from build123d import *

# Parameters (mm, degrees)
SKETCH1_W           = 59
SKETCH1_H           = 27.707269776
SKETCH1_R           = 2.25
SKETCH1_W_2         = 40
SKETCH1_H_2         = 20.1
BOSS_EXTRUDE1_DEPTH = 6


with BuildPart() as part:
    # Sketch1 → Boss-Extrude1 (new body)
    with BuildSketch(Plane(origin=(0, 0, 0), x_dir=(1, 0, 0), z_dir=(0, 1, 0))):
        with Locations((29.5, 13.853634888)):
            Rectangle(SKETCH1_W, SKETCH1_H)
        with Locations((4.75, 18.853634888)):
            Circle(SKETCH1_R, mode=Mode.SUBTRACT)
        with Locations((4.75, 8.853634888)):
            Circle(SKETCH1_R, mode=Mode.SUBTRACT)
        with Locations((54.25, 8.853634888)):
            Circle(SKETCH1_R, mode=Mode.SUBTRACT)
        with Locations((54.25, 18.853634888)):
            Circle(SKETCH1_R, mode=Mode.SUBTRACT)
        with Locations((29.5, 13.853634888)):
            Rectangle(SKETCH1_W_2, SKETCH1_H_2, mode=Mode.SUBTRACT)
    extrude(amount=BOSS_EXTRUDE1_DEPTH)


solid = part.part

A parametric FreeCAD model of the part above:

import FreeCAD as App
import Part
import Sketcher
Q = App.Units.Quantity

doc = App.newDocument("Part")
body = doc.addObject("PartDesign::Body", "Body")

sketch1 = doc.addObject("Sketcher::SketchObject", "Sketch")
body.addObject(sketch1)
sketch1.AttachmentSupport = (doc.XZ_Plane, [""])
sketch1.MapMode = "FlatFace"
sketch1.addGeometry([
    Part.LineSegment(App.Vector(0, -27.7, 0), App.Vector(0, 0, 0)),
    Part.LineSegment(App.Vector(0, 0, 0), App.Vector(59, 0, 0)),
    Part.LineSegment(App.Vector(59, 0, 0), App.Vector(59, -27.7, 0)),
    Part.LineSegment(App.Vector(59, -27.7, 0), App.Vector(0, -27.7, 0)),
    Part.Circle(App.Vector(4.8, -8.9, 0), App.Vector(0, 0, 1), 2.2),
    Part.Circle(App.Vector(54.2, -8.9, 0), App.Vector(0, 0, 1), 2.2),
    Part.Circle(App.Vector(4.8, -18.9, 0), App.Vector(0, 0, 1), 2.2),
    Part.LineSegment(App.Vector(49.5, -3.8, 0), App.Vector(9.5, -3.8, 0)),
    Part.LineSegment(App.Vector(9.5, -3.8, 0), App.Vector(9.5, -23.9, 0)),
    Part.LineSegment(App.Vector(9.5, -23.9, 0), App.Vector(49.5, -23.9, 0)),
    Part.LineSegment(App.Vector(49.5, -23.9, 0), App.Vector(49.5, -3.8, 0)),
    Part.Circle(App.Vector(54.2, -18.9, 0), App.Vector(0, 0, 1), 2.2),
], False)
sketch1.addConstraint([
    Sketcher.Constraint("Coincident", 0, 2, 1, 1),
    Sketcher.Constraint("Coincident", 1, 2, 2, 1),
    Sketcher.Constraint("Coincident", 2, 2, 3, 1),
    Sketcher.Constraint("Coincident", 3, 2, 0, 1),
    Sketcher.Constraint("Coincident", 7, 2, 8, 1),
    Sketcher.Constraint("Coincident", 8, 2, 9, 1),
    Sketcher.Constraint("Coincident", 9, 2, 10, 1),
    Sketcher.Constraint("Coincident", 10, 2, 7, 1),
    Sketcher.Constraint("Vertical", 0),
    Sketcher.Constraint("Horizontal", 1),
    Sketcher.Constraint("Vertical", 2),
    Sketcher.Constraint("Horizontal", 3),
    Sketcher.Constraint("Horizontal", 7),
    Sketcher.Constraint("Vertical", 8),
    Sketcher.Constraint("Horizontal", 9),
    Sketcher.Constraint("Vertical", 10),
    Sketcher.Constraint("Coincident", 0, 2, -1, 1),
    Sketcher.Constraint("Equal", 4, 5),
    Sketcher.Constraint("Equal", 5, 6),
    Sketcher.Constraint("Equal", 6, 11),
    Sketcher.Constraint("Horizontal", 4, 3, 5, 3),
    Sketcher.Constraint("Horizontal", 6, 3, 11, 3),
    Sketcher.Constraint("Vertical", 4, 3, 6, 3),
    Sketcher.Constraint("Vertical", 5, 3, 11, 3),
    Sketcher.Constraint("Diameter", 4, Q("4.5 mm")),
    Sketcher.Constraint("DistanceX", 1, 1, 1, 2, Q("59 mm")),
    Sketcher.Constraint("DistanceX", 7, 2, 7, 1, Q("40 mm")),
    Sketcher.Constraint("DistanceY", 8, 2, 8, 1, Q("20.1 mm")),
    Sketcher.Constraint("DistanceY", 6, 3, 4, 3, Q("10 mm")),
    Sketcher.Constraint("DistanceX", -1, 1, 7, 2, Q("9.5 mm")),
    Sketcher.Constraint("DistanceX", 4, 3, 5, 3, Q("49.5 mm")),
    Sketcher.Constraint("DistanceX", -1, 1, 4, 3, Q("4.75 mm")),
    Sketcher.Constraint("DistanceY", 4, 3, 7, 2, Q("5.05 mm")),
    Sketcher.Constraint("DistanceY", 0, 1, 0, 2, Q("27.70727 mm")),
    Sketcher.Constraint("DistanceY", 4, 3, -1, 1, Q("8.853635 mm")),
])
pad1 = doc.addObject("PartDesign::Pad", "Pad")
body.addObject(pad1)
pad1.Profile = sketch1
pad1.Length = 6
pad1.Reversed = True

doc.recompute()
